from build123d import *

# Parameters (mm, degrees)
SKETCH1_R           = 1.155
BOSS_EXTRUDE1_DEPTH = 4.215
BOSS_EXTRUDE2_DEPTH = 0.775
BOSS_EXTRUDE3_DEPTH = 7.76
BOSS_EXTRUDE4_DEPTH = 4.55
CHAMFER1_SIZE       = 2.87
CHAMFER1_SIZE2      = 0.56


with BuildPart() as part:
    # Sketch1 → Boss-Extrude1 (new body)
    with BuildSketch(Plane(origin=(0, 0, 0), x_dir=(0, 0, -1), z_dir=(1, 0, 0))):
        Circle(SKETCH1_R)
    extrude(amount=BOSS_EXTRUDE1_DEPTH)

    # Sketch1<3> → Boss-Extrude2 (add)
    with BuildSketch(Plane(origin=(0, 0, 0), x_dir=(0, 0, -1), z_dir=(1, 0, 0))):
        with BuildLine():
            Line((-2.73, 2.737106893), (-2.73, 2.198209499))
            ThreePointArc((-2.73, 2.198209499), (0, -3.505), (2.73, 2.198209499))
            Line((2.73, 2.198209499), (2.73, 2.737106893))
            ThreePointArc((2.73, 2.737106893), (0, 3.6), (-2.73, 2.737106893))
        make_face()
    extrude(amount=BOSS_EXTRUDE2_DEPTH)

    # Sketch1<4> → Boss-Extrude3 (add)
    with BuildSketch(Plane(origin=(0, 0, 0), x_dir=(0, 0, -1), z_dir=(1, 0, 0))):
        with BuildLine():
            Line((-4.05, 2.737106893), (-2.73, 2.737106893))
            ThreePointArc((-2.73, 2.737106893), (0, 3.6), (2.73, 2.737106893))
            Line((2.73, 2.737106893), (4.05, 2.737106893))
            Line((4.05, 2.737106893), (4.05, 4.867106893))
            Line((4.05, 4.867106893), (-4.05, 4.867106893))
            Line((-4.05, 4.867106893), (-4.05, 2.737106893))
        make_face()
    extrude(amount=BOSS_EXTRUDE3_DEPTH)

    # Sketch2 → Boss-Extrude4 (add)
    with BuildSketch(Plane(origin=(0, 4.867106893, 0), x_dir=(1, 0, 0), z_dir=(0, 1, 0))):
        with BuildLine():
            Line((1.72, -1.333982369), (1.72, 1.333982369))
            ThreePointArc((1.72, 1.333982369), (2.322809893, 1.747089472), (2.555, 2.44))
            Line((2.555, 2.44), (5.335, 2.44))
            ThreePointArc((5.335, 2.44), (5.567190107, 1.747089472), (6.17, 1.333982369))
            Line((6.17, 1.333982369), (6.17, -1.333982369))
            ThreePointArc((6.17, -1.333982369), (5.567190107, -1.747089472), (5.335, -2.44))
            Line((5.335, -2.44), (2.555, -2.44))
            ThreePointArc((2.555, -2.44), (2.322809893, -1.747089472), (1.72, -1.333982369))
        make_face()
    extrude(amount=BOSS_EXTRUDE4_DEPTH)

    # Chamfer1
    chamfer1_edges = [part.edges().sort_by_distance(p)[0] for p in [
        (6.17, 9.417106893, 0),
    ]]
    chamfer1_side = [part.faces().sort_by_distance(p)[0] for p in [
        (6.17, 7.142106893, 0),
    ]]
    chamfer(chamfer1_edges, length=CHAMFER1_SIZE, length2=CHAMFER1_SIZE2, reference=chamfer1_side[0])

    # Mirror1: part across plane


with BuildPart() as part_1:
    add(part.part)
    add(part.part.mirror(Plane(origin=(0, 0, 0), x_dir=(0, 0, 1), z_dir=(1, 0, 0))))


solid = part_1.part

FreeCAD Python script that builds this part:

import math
import FreeCAD as App
import Part
import Sketcher


def edges_at(feature, points):
    """Names of the edges that pass closest to the given points."""
    edges = feature.Shape.Edges
    near = lambda p: min(range(len(edges)), key=lambda i: edges[i].distToShape(Part.Vertex(*p))[0])
    return sorted({f"Edge{near(p) + 1}" for p in points})

doc = App.newDocument("Part")
body = doc.addObject("PartDesign::Body", "Body")

sketch1 = doc.addObject("Sketcher::SketchObject", "Sketch")
body.addObject(sketch1)
sketch1.AttachmentSupport = (doc.YZ_Plane, [""])
sketch1.MapMode = "FlatFace"
sketch1.addGeometry(Part.Circle(App.Vector(0, 0, 0), App.Vector(0, 0, 1), 1.2), False)
sketch1.addConstraint([
    Sketcher.Constraint("Coincident", 0, 3, -1, 1),
    Sketcher.Constraint("Diameter", 0, 2.31),
])
pad1 = doc.addObject("PartDesign::Pad", "Pad")
body.addObject(pad1)
pad1.Profile = sketch1
pad1.Length = 4.215

sketch2 = doc.addObject("Sketcher::SketchObject", "Sketch001")
body.addObject(sketch2)
sketch2.AttachmentSupport = (doc.YZ_Plane, [""])
sketch2.MapMode = "FlatFace"
sketch2.addGeometry([
    Part.LineSegment(App.Vector(2.7, 2.7, 0), App.Vector(2.2, 2.7, 0)),
    Part.ArcOfCircle(Part.Circle(App.Vector(0, 0, 0), App.Vector(0, 0, 1), 3.5), math.radians(51), math.radians(309)),
    Part.LineSegment(App.Vector(2.2, -2.7, 0), App.Vector(2.7, -2.7, 0)),
    Part.ArcOfCircle(Part.Circle(App.Vector(-1.1, 0, 0), App.Vector(0, 0, 1), 4.7), math.radians(-35), math.radians(35)),
], False)
sketch2.addConstraint([
    Sketcher.Constraint("Coincident", 0, 2, 1, 1),
    Sketcher.Constraint("Coincident", 1, 2, 2, 1),
    Sketcher.Constraint("Coincident", 2, 2, 3, 1),
    Sketcher.Constraint("Coincident", 3, 2, 0, 1),
    Sketcher.Constraint("Horizontal", 0),
    Sketcher.Constraint("Horizontal", 2),
    Sketcher.Constraint("Coincident", 1, 3, -1, 1),
    Sketcher.Constraint("Symmetric", 2, 2, 3, 2, -1),
    Sketcher.Constraint("Radius", 3, 4.75),
    Sketcher.Constraint("Radius", 1, 3.505),
    Sketcher.Constraint("DistanceX", 3, 3, -1, 1, 1.15),
    Sketcher.Constraint("DistanceY", -1, 1, 0, 2, 2.73),
])
pad2 = doc.addObject("PartDesign::Pad", "Pad001")
body.addObject(pad2)
pad2.Profile = sketch2
pad2.Length = 0.775

sketch3 = doc.addObject("Sketcher::SketchObject", "Sketch002")
body.addObject(sketch3)
sketch3.AttachmentSupport = (doc.YZ_Plane, [""])
sketch3.MapMode = "FlatFace"
sketch3.addGeometry([
    Part.LineSegment(App.Vector(2.7, 4, 0), App.Vector(2.7, 2.7, 0)),
    Part.ArcOfCircle(Part.Circle(App.Vector(-1.1, 0, 0), App.Vector(0, 0, 1), 4.7), math.radians(-35), math.radians(35)),
    Part.LineSegment(App.Vector(2.7, -2.7, 0), App.Vector(2.7, -4, 0)),
    Part.LineSegment(App.Vector(2.7, -4, 0), App.Vector(4.9, -4, 0)),
    Part.LineSegment(App.Vector(4.9, -4, 0), App.Vector(4.9, 4, 0)),
    Part.LineSegment(App.Vector(4.9, 4, 0), App.Vector(2.7, 4, 0)),
], False)
sketch3.addConstraint([
    Sketcher.Constraint("Coincident", 0, 2, 1, 2),
    Sketcher.Constraint("Coincident", 1, 1, 2, 1),
    Sketcher.Constraint("Coincident", 2, 2, 3, 1),
    Sketcher.Constraint("Coincident", 3, 2, 4, 1),
    Sketcher.Constraint("Coincident", 4, 2, 5, 1),
    Sketcher.Constraint("Coincident", 5, 2, 0, 1),
    Sketcher.Constraint("Vertical", 0),
    Sketcher.Constraint("Vertical", 2),
    Sketcher.Constraint("Horizontal", 3),
    Sketcher.Constraint("Vertical", 4),
    Sketcher.Constraint("Horizontal", 5),
    Sketcher.Constraint("Symmetric", 0, 2, 1, 1, -1),
    Sketcher.Constraint("Equal", 0, 2),
    Sketcher.Constraint("Radius", 1, 4.75),
    Sketcher.Constraint("DistanceY", 4, 1, 4, 2, 8.1),
    Sketcher.Constraint("DistanceX", 3, 1, 3, 2, 2.13),
    Sketcher.Constraint("DistanceY", 0, 2, 0, 1, 1.32),
    Sketcher.Constraint("DistanceX", 1, 3, -1, 1, 1.15),
])
pad3 = doc.addObject("PartDesign::Pad", "Pad002")
body.addObject(pad3)
pad3.Profile = sketch3
pad3.Length = 7.76

sketch4 = doc.addObject("Sketcher::SketchObject", "Sketch003")
body.addObject(sketch4)
sketch4.AttachmentSupport = (doc.XZ_Plane, [""])
sketch4.MapMode = "FlatFace"
sketch4.AttachmentOffset = App.Placement(App.Vector(0, 0, -4.867107), App.Rotation())
sketch4.addGeometry([
    Part.LineSegment(App.Vector(1.7, -1.3, 0), App.Vector(1.7, 1.3, 0)),
    Part.ArcOfCircle(Part.Circle(App.Vector(1.4, 2.4, 0), App.Vector(0, 0, 1), 1.2), math.radians(-74), math.radians(0)),
    Part.LineSegment(App.Vector(2.6, 2.4, 0), App.Vector(5.3, 2.4, 0)),
    Part.ArcOfCircle(Part.Circle(App.Vector(6.5, 2.4, 0), App.Vector(0, 0, 1), 1.2), math.radians(-180), math.radians(-106)),
    Part.LineSegment(App.Vector(6.2, 1.3, 0), App.Vector(6.2, -1.3, 0)),
    Part.ArcOfCircle(Part.Circle(App.Vector(6.5, -2.4, 0), App.Vector(0, 0, 1), 1.2), math.radians(106), math.radians(180)),
    Part.LineSegment(App.Vector(5.3, -2.4, 0), App.Vector(2.6, -2.4, 0)),
    Part.ArcOfCircle(Part.Circle(App.Vector(1.4, -2.4, 0), App.Vector(0, 0, 1), 1.2), math.radians(0), math.radians(74)),
], False)
sketch4.addConstraint([
    Sketcher.Constraint("Coincident", 0, 2, 1, 1),
    Sketcher.Constraint("Coincident", 1, 2, 2, 1),
    Sketcher.Constraint("Coincident", 2, 2, 3, 1),
    Sketcher.Constraint("Coincident", 3, 2, 4, 1),
    Sketcher.Constraint("Coincident", 4, 2, 5, 1),
    Sketcher.Constraint("Coincident", 5, 2, 6, 1),
    Sketcher.Constraint("Coincident", 6, 2, 7, 1),
    Sketcher.Constraint("Coincident", 7, 2, 0, 1),
    Sketcher.Constraint("Vertical", 0),
    Sketcher.Constraint("Horizontal", 2),
    Sketcher.Constraint("Vertical", 4),
    Sketcher.Constraint("Horizontal", 6),
    Sketcher.Constraint("Equal", 1, 3),
    Sketcher.Constraint("Equal", 3, 5),
    Sketcher.Constraint("Equal", 5, 7),
    Sketcher.Constraint("Symmetric", 3, 3, 5, 3, -1),
    Sketcher.Constraint("Symmetric", 1, 3, 7, 3, -1),
    Sketcher.Constraint("Horizontal", 1, 3, 3, 3),
    Sketcher.Constraint("Horizontal", 3, 3, 1, 2),
    Sketcher.Constraint("Horizontal", 0, 2, 3, 2),
    Sketcher.Constraint("Horizontal", 7, 3, 5, 2),
    Sketcher.Constraint("Radius", 1, 1.15),
    Sketcher.Constraint("DistanceX", 2, 1, 2, 2, 2.78),
    Sketcher.Constraint("DistanceY", -1, 1, 1, 3, 2.44),
    Sketcher.Constraint("DistanceX", -1, 1, 0, 2, 1.72),
    Sketcher.Constraint("DistanceX", -1, 1, 3, 2, 6.17),
])
pad4 = doc.addObject("PartDesign::Pad", "Pad003")
body.addObject(pad4)
pad4.Profile = sketch4
pad4.Length = 4.55
pad4.Reversed = True
doc.recompute()

chamfer = doc.addObject("PartDesign::Chamfer", "Chamfer")
body.addObject(chamfer)
chamfer.Base = (pad4, edges_at(pad4, [(6.17, 9.417, 0)]))
chamfer.ChamferType = "Two distances"
chamfer.Size = 2.87
chamfer.Size2 = 0.56
body2 = doc.addObject("PartDesign::Body", "Body001")
doc.recompute()

body2.BaseFeature = body
doc.recompute()

mirroring = doc.addObject("Part::Mirroring", "Mirroring")
mirroring.Source = body
mirroring.Base = App.Vector(0, 0, 0)
mirroring.Normal = App.Vector(1, 0, 0)
body3 = doc.addObject("PartDesign::Body", "Body002")
body3.BaseFeature = mirroring
boolean = doc.addObject("PartDesign::Boolean", "Boolean")
body2.addObject(boolean)
boolean.Type = "Fuse"
boolean.addObjects([body3])
doc.recompute()
mirroring.Visibility = False

doc.recompute()
